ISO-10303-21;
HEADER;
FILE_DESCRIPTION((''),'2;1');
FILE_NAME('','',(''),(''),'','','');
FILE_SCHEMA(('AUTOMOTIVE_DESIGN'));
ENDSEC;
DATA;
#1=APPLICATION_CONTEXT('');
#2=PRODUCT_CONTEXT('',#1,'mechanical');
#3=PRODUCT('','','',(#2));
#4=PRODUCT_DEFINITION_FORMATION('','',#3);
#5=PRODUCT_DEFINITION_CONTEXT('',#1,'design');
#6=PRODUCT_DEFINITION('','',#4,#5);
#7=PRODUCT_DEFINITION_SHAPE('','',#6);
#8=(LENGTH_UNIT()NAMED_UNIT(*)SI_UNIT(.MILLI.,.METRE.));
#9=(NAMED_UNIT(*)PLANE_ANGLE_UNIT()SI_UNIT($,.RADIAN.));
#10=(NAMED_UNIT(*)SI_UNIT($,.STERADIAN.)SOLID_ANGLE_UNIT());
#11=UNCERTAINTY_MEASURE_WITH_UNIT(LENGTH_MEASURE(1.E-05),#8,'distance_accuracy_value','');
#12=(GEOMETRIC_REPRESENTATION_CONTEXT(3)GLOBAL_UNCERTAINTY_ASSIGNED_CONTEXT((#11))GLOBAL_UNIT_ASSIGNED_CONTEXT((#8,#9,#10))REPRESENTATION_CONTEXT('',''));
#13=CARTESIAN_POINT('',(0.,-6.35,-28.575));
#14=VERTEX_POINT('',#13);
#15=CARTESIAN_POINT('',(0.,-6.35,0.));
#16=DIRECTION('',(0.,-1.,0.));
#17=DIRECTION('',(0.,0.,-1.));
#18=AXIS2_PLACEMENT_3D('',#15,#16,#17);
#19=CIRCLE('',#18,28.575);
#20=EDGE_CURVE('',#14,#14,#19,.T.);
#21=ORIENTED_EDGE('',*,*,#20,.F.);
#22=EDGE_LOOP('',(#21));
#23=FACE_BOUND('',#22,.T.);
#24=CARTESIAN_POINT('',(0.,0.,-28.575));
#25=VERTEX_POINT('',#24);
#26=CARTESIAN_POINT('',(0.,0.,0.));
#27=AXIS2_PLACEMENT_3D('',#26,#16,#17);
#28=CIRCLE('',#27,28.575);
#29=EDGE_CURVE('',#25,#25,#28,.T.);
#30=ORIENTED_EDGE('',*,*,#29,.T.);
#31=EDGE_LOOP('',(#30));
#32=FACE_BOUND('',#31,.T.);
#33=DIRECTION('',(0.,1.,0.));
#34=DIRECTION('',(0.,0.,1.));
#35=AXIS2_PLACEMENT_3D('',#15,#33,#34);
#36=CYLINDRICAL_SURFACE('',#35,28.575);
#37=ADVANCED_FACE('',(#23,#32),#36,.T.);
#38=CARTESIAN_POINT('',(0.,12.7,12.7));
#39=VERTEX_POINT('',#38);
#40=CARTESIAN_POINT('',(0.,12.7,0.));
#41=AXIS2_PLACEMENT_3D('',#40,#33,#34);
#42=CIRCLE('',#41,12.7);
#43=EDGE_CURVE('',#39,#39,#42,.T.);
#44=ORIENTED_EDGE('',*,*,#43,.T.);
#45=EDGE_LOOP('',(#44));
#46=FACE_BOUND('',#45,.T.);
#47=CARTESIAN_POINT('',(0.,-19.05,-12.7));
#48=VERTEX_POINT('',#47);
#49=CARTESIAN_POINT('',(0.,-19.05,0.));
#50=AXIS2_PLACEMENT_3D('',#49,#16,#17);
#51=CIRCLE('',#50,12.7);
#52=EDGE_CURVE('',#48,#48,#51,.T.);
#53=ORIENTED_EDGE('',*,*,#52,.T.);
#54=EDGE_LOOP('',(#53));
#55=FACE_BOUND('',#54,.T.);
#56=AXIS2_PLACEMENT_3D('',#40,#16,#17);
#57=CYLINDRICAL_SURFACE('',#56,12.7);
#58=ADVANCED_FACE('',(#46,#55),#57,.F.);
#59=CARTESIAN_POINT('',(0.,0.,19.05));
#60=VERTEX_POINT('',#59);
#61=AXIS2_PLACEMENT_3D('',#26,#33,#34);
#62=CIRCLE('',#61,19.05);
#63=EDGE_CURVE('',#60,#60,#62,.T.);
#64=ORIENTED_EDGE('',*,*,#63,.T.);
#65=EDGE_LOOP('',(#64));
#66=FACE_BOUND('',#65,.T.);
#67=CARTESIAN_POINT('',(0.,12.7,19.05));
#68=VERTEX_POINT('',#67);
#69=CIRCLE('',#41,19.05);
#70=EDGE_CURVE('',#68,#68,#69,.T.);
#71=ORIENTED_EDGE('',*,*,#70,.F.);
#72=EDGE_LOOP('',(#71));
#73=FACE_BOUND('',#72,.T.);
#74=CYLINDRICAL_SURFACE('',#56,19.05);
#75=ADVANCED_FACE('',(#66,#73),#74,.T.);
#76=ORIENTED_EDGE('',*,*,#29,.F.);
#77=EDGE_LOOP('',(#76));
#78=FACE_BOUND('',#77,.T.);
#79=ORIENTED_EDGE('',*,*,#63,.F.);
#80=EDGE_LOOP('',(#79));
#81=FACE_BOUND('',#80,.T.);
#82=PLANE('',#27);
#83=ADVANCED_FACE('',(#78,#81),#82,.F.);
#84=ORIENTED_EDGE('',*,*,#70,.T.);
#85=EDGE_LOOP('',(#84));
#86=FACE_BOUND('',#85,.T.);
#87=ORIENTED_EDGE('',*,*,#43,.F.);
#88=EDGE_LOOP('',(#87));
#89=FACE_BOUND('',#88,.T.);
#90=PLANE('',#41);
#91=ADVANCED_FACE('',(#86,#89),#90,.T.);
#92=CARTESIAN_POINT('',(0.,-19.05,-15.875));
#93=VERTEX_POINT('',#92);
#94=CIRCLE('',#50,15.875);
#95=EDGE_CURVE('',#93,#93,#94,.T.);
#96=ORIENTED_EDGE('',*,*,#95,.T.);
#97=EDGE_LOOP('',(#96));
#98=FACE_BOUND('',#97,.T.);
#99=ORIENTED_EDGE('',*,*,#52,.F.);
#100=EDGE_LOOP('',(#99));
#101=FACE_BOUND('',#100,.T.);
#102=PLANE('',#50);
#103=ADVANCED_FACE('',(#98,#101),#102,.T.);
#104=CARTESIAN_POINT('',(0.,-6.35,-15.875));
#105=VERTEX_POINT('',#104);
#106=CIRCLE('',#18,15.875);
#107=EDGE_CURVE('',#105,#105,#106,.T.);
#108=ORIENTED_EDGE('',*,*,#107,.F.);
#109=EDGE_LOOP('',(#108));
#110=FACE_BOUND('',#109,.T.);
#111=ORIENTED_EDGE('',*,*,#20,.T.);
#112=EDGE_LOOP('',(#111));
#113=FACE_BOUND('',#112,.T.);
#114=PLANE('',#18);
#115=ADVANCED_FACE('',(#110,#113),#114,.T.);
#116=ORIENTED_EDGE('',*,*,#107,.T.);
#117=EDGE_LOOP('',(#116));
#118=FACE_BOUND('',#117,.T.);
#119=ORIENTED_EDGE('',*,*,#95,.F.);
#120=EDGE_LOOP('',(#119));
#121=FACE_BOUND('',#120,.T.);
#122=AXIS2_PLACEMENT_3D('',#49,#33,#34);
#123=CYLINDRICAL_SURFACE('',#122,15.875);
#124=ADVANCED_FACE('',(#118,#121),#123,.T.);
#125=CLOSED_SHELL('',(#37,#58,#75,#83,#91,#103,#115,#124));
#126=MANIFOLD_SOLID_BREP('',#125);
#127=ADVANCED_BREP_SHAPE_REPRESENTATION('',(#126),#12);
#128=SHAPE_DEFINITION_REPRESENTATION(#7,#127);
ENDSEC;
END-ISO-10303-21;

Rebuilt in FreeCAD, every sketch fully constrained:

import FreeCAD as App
import Part
import Sketcher
Q = App.Units.Quantity

doc = App.newDocument("Part")
body = doc.addObject("PartDesign::Body", "Body")

# Sketch on XZ plane
sketch1 = body.newObject("Sketcher::SketchObject", "Sketch")
sketch1.AttachmentSupport = (doc.getObject("XZ_Plane"), [""])
sketch1.MapMode = "FlatFace"
sketch1.addGeometry([
    Part.Circle(App.Vector(0, 0, 0), App.Vector(0, 0, 1), 19.05),
    Part.Circle(App.Vector(0, 0, 0), App.Vector(0, 0, 1), 12.7),
], False)
sketch1.addConstraint([
    Sketcher.Constraint("Coincident", 0, 3, -1, 1),
    Sketcher.Constraint("Coincident", 1, 3, -1, 1),
    Sketcher.Constraint("Diameter", 1, Q("1 in")),
    Sketcher.Constraint("Diameter", 0, Q("1.5 in")),
])
pad1 = body.newObject("PartDesign::Pad", "Pad")
pad1.Profile = sketch1
pad1.Length = Q("0.5 in")
pad1.Reversed = True

# Sketch on XZ plane
sketch2 = body.newObject("Sketcher::SketchObject", "Sketch001")
sketch2.AttachmentSupport = (doc.getObject("XZ_Plane"), [""])
sketch2.MapMode = "FlatFace"
sketch2.AttachmentOffset = App.Placement(App.Vector(0, 0, 0.25 * 25.4), App.Rotation())
sketch2.addGeometry([
    Part.Circle(App.Vector(0, 0, 0), App.Vector(0, 0, 1), 28.575),
    Part.Circle(App.Vector(0, 0, 0), App.Vector(0, 0, 1), 12.7),
], False)
sketch2.addConstraint([
    Sketcher.Constraint("Coincident", 0, 3, -1, 1),
    Sketcher.Constraint("Coincident", 1, 3, -1, 1),
    Sketcher.Constraint("Diameter", 1, Q("1 in")),
    Sketcher.Constraint("Diameter", 0, Q("2.25 in")),
])
pad2 = body.newObject("PartDesign::Pad", "Pad001")
pad2.Profile = sketch2
pad2.Length = Q("0.25 in")
pad2.Reversed = True

# Sketch on XZ plane
sketch3 = body.newObject("Sketcher::SketchObject", "Sketch002")
sketch3.AttachmentSupport = (doc.getObject("XZ_Plane"), [""])
sketch3.MapMode = "FlatFace"
sketch3.AttachmentOffset = App.Placement(App.Vector(0, 0, 0.75 * 25.4), App.Rotation())
sketch3.addGeometry([
    Part.Circle(App.Vector(0, 0, 0), App.Vector(0, 0, 1), 15.875),
    Part.Circle(App.Vector(0, 0, 0), App.Vector(0, 0, 1), 12.7),
], False)
sketch3.addConstraint([
    Sketcher.Constraint("Coincident", 0, 3, -1, 1),
    Sketcher.Constraint("Coincident", 1, 3, -1, 1),
    Sketcher.Constraint("Diameter", 1, Q("1 in")),
    Sketcher.Constraint("Diameter", 0, Q("1.25 in")),
])
pad3 = body.newObject("PartDesign::Pad", "Pad002")
pad3.Profile = sketch3
pad3.Length = Q("0.5 in")
pad3.Reversed = True

doc.recompute()
